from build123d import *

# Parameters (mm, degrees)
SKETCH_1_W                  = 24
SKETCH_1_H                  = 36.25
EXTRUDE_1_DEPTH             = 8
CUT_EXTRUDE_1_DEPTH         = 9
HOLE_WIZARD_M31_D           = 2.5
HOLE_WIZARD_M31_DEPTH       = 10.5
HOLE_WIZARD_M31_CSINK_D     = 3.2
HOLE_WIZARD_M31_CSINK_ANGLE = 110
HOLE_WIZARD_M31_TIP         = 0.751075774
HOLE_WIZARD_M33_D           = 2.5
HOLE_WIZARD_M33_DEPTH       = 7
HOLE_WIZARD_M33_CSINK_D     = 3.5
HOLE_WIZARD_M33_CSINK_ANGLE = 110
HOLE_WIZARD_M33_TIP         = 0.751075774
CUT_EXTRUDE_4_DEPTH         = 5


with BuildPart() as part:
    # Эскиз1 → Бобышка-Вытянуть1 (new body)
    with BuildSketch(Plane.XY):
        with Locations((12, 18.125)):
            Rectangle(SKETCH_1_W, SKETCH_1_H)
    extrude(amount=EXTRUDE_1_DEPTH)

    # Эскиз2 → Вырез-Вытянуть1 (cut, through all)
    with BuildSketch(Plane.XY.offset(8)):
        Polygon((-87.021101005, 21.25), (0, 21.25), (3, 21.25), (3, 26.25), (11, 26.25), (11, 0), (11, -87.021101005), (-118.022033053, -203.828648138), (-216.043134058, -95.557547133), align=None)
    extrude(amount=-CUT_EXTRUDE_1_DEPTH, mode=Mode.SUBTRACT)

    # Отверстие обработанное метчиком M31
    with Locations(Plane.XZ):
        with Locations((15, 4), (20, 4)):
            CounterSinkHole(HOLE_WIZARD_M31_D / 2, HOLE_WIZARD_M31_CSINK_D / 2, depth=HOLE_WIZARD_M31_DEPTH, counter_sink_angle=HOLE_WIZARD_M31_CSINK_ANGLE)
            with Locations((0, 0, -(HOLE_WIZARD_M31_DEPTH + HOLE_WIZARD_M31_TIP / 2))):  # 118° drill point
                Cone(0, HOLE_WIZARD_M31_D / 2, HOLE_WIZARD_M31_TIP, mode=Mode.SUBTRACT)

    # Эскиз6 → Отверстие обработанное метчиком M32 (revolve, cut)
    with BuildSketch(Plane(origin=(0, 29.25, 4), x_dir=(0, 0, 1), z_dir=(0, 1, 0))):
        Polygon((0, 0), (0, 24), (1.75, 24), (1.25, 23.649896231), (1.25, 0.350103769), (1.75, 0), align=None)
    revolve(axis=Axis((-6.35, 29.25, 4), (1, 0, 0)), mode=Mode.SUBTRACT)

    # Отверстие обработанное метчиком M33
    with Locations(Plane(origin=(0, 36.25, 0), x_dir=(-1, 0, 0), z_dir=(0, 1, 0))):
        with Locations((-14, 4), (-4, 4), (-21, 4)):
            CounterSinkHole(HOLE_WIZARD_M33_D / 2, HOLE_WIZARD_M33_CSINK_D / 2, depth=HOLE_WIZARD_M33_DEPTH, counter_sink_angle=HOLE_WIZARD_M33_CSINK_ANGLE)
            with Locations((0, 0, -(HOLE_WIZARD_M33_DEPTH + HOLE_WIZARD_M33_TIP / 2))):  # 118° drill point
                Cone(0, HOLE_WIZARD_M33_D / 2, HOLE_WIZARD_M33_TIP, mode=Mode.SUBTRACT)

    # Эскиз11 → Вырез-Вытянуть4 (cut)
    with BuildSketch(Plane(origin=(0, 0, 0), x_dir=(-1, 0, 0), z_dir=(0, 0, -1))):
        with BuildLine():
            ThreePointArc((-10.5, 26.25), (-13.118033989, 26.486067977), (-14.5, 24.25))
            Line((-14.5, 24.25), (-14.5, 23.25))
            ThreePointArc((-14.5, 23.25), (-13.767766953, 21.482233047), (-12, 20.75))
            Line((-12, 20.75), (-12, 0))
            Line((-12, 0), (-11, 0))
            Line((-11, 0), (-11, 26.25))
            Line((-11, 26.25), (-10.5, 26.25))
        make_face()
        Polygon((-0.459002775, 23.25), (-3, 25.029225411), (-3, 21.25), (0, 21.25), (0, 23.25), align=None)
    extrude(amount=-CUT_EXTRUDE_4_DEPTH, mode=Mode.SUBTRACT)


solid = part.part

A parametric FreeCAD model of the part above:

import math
import FreeCAD as App
import Part
import Sketcher
from FreeCAD import Vector
Q = App.Units.Quantity

doc = App.newDocument("Part")
body = doc.addObject("PartDesign::Body", "Body")

# Sketch on XY plane
sketch1 = body.newObject("Sketcher::SketchObject", "Sketch")
sketch1.AttachmentSupport = (doc.getObject("XY_Plane"), [""])
sketch1.MapMode = "FlatFace"
sketch1.addGeometry(Part.LineSegment(Vector(0, 36, 0), Vector(0, 0, 0)), False)
sketch1.addGeometry(Part.LineSegment(Vector(0, 0, 0), Vector(24, 0, 0)), False)
sketch1.addGeometry(Part.LineSegment(Vector(24, 0, 0), Vector(24, 36, 0)), False)
sketch1.addGeometry(Part.LineSegment(Vector(24, 36, 0), Vector(0, 36, 0)), False)
sketch1.addConstraint(Sketcher.Constraint("Coincident", 0, 2, 1, 1))
sketch1.addConstraint(Sketcher.Constraint("Coincident", 1, 2, 2, 1))
sketch1.addConstraint(Sketcher.Constraint("Coincident", 2, 2, 3, 1))
sketch1.addConstraint(Sketcher.Constraint("Coincident", 3, 2, 0, 1))
sketch1.addConstraint(Sketcher.Constraint("Vertical", 0))
sketch1.addConstraint(Sketcher.Constraint("Horizontal", 1))
sketch1.addConstraint(Sketcher.Constraint("Vertical", 2))
sketch1.addConstraint(Sketcher.Constraint("Horizontal", 3))
sketch1.addConstraint(Sketcher.Constraint("Coincident", 0, 2, -1, 1))
sketch1.addConstraint(Sketcher.Constraint("DistanceX", 1, 1, 1, 2, Q("24 mm")))
sketch1.addConstraint(Sketcher.Constraint("DistanceY", 0, 2, 0, 1, Q("36.25 mm")))
pad1 = body.newObject("PartDesign::Pad", "Pad")
pad1.Profile = sketch1
pad1.Length = 8

# Sketch on XY plane
sketch2 = body.newObject("Sketcher::SketchObject", "Sketch001")
sketch2.AttachmentSupport = (doc.getObject("XY_Plane"), [""])
sketch2.MapMode = "FlatFace"
sketch2.AttachmentOffset = App.Placement(Vector(0, 0, 8), App.Rotation())
sketch2.addGeometry(Part.LineSegment(Vector(3, 21, 0), Vector(-87, 21, 0)), False)
sketch2.addGeometry(Part.LineSegment(Vector(-87, 21, 0), Vector(-216, -96, 0)), False)
sketch2.addGeometry(Part.LineSegment(Vector(-216, -96, 0), Vector(-118, -204, 0)), False)
sketch2.addGeometry(Part.LineSegment(Vector(-118, -204, 0), Vector(11, -87, 0)), False)
sketch2.addGeometry(Part.LineSegment(Vector(11, -87, 0), Vector(11, 26, 0)), False)
sketch2.addGeometry(Part.LineSegment(Vector(11, 26, 0), Vector(3, 26, 0)), False)
sketch2.addGeometry(Part.LineSegment(Vector(3, 26, 0), Vector(3, 21, 0)), False)
sketch2.addConstraint(Sketcher.Constraint("Coincident", 0, 2, 1, 1))
sketch2.addConstraint(Sketcher.Constraint("Coincident", 1, 2, 2, 1))
sketch2.addConstraint(Sketcher.Constraint("Coincident", 2, 2, 3, 1))
sketch2.addConstraint(Sketcher.Constraint("Coincident", 3, 2, 4, 1))
sketch2.addConstraint(Sketcher.Constraint("Coincident", 4, 2, 5, 1))
sketch2.addConstraint(Sketcher.Constraint("Coincident", 5, 2, 6, 1))
sketch2.addConstraint(Sketcher.Constraint("Coincident", 6, 2, 0, 1))
sketch2.addConstraint(Sketcher.Constraint("Horizontal", 0))
sketch2.addConstraint(Sketcher.Constraint("Vertical", 4))
sketch2.addConstraint(Sketcher.Constraint("Horizontal", 5))
sketch2.addConstraint(Sketcher.Constraint("Vertical", 6))
sketch2.addConstraint(Sketcher.Constraint("Perpendicular", 1, 2))
sketch2.addConstraint(Sketcher.Constraint("Perpendicular", 2, 3))
sketch2.addConstraint(Sketcher.Constraint("Equal", 1, 3))
sketch2.addConstraint(Sketcher.Constraint("DistanceX", 5, 2, 5, 1, Q("8 mm")))
sketch2.addConstraint(Sketcher.Constraint("DistanceY", 6, 2, 6, 1, Q("5 mm")))
sketch2.addConstraint(Sketcher.Constraint("DistanceX", -1, 1, 3, 2, Q("11 mm")))
sketch2.addConstraint(Sketcher.Constraint("DistanceY", -1, 1, 0, 2, Q("21.25 mm")))
sketch2.addConstraint(Sketcher.Constraint("DistanceX", 0, 2, 0, 1, Q("90.021101 mm")))
sketch2.addConstraint(Sketcher.Constraint("DistanceY", 4, 1, 4, 2, Q("113.271101 mm")))
sketch2.addConstraint(Sketcher.Constraint("DistanceY", 2, 2, -1, 1, Q("203.828648 mm")))
pocket1 = body.newObject("PartDesign::Pocket", "Pocket")
pocket1.Profile = sketch2
pocket1.Type = "ThroughAll"

# Sketch on XZ plane
sketch3 = body.newObject("Sketcher::SketchObject", "Sketch002")
sketch3.AttachmentSupport = (doc.getObject("XZ_Plane"), [""])
sketch3.MapMode = "FlatFace"
sketch3.addGeometry(Part.Circle(Vector(15, 4, 0), Vector(0, 0, 1), 1.2), False)
sketch3.addGeometry(Part.Circle(Vector(20, 4, 0), Vector(0, 0, 1), 1.2), False)
sketch3.addConstraint(Sketcher.Constraint("Equal", 0, 1))
sketch3.addConstraint(Sketcher.Constraint("Horizontal", 0, 3, 1, 3))
sketch3.addConstraint(Sketcher.Constraint("Diameter", 0, Q("2.5 mm")))
sketch3.addConstraint(Sketcher.Constraint("DistanceX", -1, 1, 0, 3, Q("15 mm")))
sketch3.addConstraint(Sketcher.Constraint("DistanceY", -1, 1, 0, 3, Q("4 mm")))
sketch3.addConstraint(Sketcher.Constraint("DistanceX", -1, 1, 1, 3, Q("20 mm")))
doc.recompute()
hole = body.newObject("PartDesign::Hole", "Hole")
hole.Profile = sketch3
hole.ThreadType = "None"
hole.Diameter = 2.5
hole.DepthType = "Dimension"
hole.Depth = 10.5
hole.DrillPoint = "Angled"
hole.DrillPointAngle = 118
hole.HoleCutType = "Countersink"
hole.HoleCutDiameter = 3.2
hole.HoleCutCountersinkAngle = 110

# Sketch on XZ plane
sketch4 = body.newObject("Sketcher::SketchObject", "Sketch003")
sketch4.AttachmentSupport = (doc.getObject("XZ_Plane"), [""])
sketch4.MapMode = "FlatFace"
sketch4.AttachmentOffset = App.Placement(Vector(0, 0, -29.25), App.Rotation())
sketch4.addGeometry(Part.LineSegment(Vector(24, 4, 0), Vector(0, 4, 0)), False)
sketch4.addGeometry(Part.LineSegment(Vector(0, 4, 0), Vector(0, 5.8, 0)), False)
sketch4.addGeometry(Part.LineSegment(Vector(0, 5.8, 0), Vector(0.4, 5.2, 0)), False)
sketch4.addGeometry(Part.LineSegment(Vector(0.4, 5.2, 0), Vector(23.6, 5.2, 0)), False)
sketch4.addGeometry(Part.LineSegment(Vector(23.6, 5.2, 0), Vector(24, 5.8, 0)), False)
sketch4.addGeometry(Part.LineSegment(Vector(24, 5.8, 0), Vector(24, 4, 0)), False)
sketch4.addGeometry(Part.LineSegment(Vector(0, 4, 0), Vector(24, 4, 0)), True)  # axis
sketch4.addConstraint(Sketcher.Constraint("Coincident", 0, 2, 1, 1))
sketch4.addConstraint(Sketcher.Constraint("Coincident", 1, 2, 2, 1))
sketch4.addConstraint(Sketcher.Constraint("Coincident", 2, 2, 3, 1))
sketch4.addConstraint(Sketcher.Constraint("Coincident", 3, 2, 4, 1))
sketch4.addConstraint(Sketcher.Constraint("Coincident", 4, 2, 5, 1))
sketch4.addConstraint(Sketcher.Constraint("Coincident", 5, 2, 0, 1))
sketch4.addConstraint(Sketcher.Constraint("Horizontal", 0))
sketch4.addConstraint(Sketcher.Constraint("Vertical", 1))
sketch4.addConstraint(Sketcher.Constraint("Horizontal", 3))
sketch4.addConstraint(Sketcher.Constraint("Vertical", 5))
sketch4.addConstraint(Sketcher.Constraint("Horizontal", 6))
sketch4.addConstraint(Sketcher.Constraint("Coincident", 6, 1, 0, 2))
sketch4.addConstraint(Sketcher.Constraint("PointOnObject", 0, 2, -2))
sketch4.addConstraint(Sketcher.Constraint("Horizontal", 1, 2, 4, 2))
sketch4.addConstraint(Sketcher.Constraint("Vertical", 4, 2, 6, 2))
sketch4.addConstraint(Sketcher.Constraint("Equal", 2, 4))
sketch4.addConstraint(Sketcher.Constraint("DistanceX", 0, 2, 0, 1, Q("24 mm")))
sketch4.addConstraint(Sketcher.Constraint("Angle", 2, Q("-55 deg")))
sketch4.addConstraint(Sketcher.Constraint("DistanceY", -1, 1, 0, 2, Q("4 mm")))
sketch4.addConstraint(Sketcher.Constraint("DistanceY", 1, 1, 1, 2, Q("1.75 mm")))
sketch4.addConstraint(Sketcher.Constraint("DistanceY", 2, 2, 1, 2, Q("0.5 mm")))
groove = body.newObject("PartDesign::Groove", "Groove")
groove.Profile = sketch4
groove.ReferenceAxis = (sketch4, ["Axis0"])
groove.Angle = 360

# Sketch on XZ plane
sketch5 = body.newObject("Sketcher::SketchObject", "Sketch004")
sketch5.AttachmentSupport = (doc.getObject("XZ_Plane"), [""])
sketch5.MapMode = "FlatFace"
sketch5.AttachmentOffset = App.Placement(Vector(0, 0, -36.25), App.Rotation())
sketch5.addGeometry(Part.Circle(Vector(14, 4, 0), Vector(0, 0, 1), 1.2), False)
sketch5.addGeometry(Part.Circle(Vector(4, 4, 0), Vector(0, 0, 1), 1.2), False)
sketch5.addGeometry(Part.Circle(Vector(21, 4, 0), Vector(0, 0, 1), 1.2), False)
sketch5.addConstraint(Sketcher.Constraint("Equal", 0, 1))
sketch5.addConstraint(Sketcher.Constraint("Equal", 1, 2))
sketch5.addConstraint(Sketcher.Constraint("Horizontal", 0, 3, 1, 3))
sketch5.addConstraint(Sketcher.Constraint("Horizontal", 1, 3, 2, 3))
sketch5.addConstraint(Sketcher.Constraint("Diameter", 0, Q("2.5 mm")))
sketch5.addConstraint(Sketcher.Constraint("DistanceX", -1, 1, 0, 3, Q("14 mm")))
sketch5.addConstraint(Sketcher.Constraint("DistanceY", -1, 1, 0, 3, Q("4 mm")))
sketch5.addConstraint(Sketcher.Constraint("DistanceX", -1, 1, 1, 3, Q("4 mm")))
sketch5.addConstraint(Sketcher.Constraint("DistanceX", -1, 1, 2, 3, Q("21 mm")))
doc.recompute()
hole2 = body.newObject("PartDesign::Hole", "Hole001")
hole2.Profile = sketch5
hole2.ThreadType = "None"
hole2.Diameter = 2.5
hole2.DepthType = "Dimension"
hole2.Depth = 7
hole2.DrillPoint = "Angled"
hole2.DrillPointAngle = 118
hole2.HoleCutType = "Countersink"
hole2.HoleCutDiameter = 3.5
hole2.HoleCutCountersinkAngle = 110
hole2.Reversed = True

# Sketch on XY plane
sketch6 = body.newObject("Sketcher::SketchObject", "Sketch005")
sketch6.AttachmentSupport = (doc.getObject("XY_Plane"), [""])
sketch6.MapMode = "FlatFace"
sketch6.addGeometry(Part.ArcOfCircle(Part.Circle(Vector(12, 24.25, 0), Vector(0, 0, 1), 2.5), math.radians(0), math.radians(127)), False)
sketch6.addGeometry(Part.LineSegment(Vector(14.5, 24.25, 0), Vector(14.5, 23.25, 0)), False)
sketch6.addGeometry(Part.ArcOfCircle(Part.Circle(Vector(12, 23.25, 0), Vector(0, 0, 1), 2.5), math.radians(-90), math.radians(0)), False)
sketch6.addGeometry(Part.LineSegment(Vector(12, 20.75, 0), Vector(12, 0, 0)), False)
sketch6.addGeometry(Part.LineSegment(Vector(12, 0, 0), Vector(11, 0, 0)), False)
sketch6.addGeometry(Part.LineSegment(Vector(11, 0, 0), Vector(11, 26.25, 0)), False)
sketch6.addGeometry(Part.LineSegment(Vector(11, 26.25, 0), Vector(10.5, 26.25, 0)), False)
sketch6.addGeometry(Part.LineSegment(Vector(0.46, 23.25, 0), Vector(3, 25.03, 0)), False)
sketch6.addGeometry(Part.LineSegment(Vector(3, 25.03, 0), Vector(3, 21.25, 0)), False)
sketch6.addGeometry(Part.LineSegment(Vector(3, 21.25, 0), Vector(0, 21.25, 0)), False)
sketch6.addGeometry(Part.LineSegment(Vector(0, 21.25, 0), Vector(0, 23.25, 0)), False)
sketch6.addGeometry(Part.LineSegment(Vector(0, 23.25, 0), Vector(0.46, 23.25, 0)), False)
sketch6.addConstraint(Sketcher.Constraint("Tangent", 0, 1, 1, 1))
sketch6.addConstraint(Sketcher.Constraint("Tangent", 1, 2, 2, 2))
sketch6.addConstraint(Sketcher.Constraint("Coincident", 2, 1, 3, 1))
sketch6.addConstraint(Sketcher.Constraint("Coincident", 3, 2, 4, 1))
sketch6.addConstraint(Sketcher.Constraint("Coincident", 4, 2, 5, 1))
sketch6.addConstraint(Sketcher.Constraint("Coincident", 5, 2, 6, 1))
sketch6.addConstraint(Sketcher.Constraint("Coincident", 6, 2, 0, 2))
sketch6.addConstraint(Sketcher.Constraint("Coincident", 7, 2, 8, 1))
sketch6.addConstraint(Sketcher.Constraint("Coincident", 8, 2, 9, 1))
sketch6.addConstraint(Sketcher.Constraint("Coincident", 9, 2, 10, 1))
sketch6.addConstraint(Sketcher.Constraint("Coincident", 10, 2, 11, 1))
sketch6.addConstraint(Sketcher.Constraint("Coincident", 11, 2, 7, 1))
sketch6.addConstraint(Sketcher.Constraint("Vertical", 1))
sketch6.addConstraint(Sketcher.Constraint("Vertical", 3))
sketch6.addConstraint(Sketcher.Constraint("Horizontal", 4))
sketch6.addConstraint(Sketcher.Constraint("Vertical", 5))
sketch6.addConstraint(Sketcher.Constraint("Horizontal", 6))
sketch6.addConstraint(Sketcher.Constraint("Vertical", 8))
sketch6.addConstraint(Sketcher.Constraint("Horizontal", 9))
sketch6.addConstraint(Sketcher.Constraint("Vertical", 10))
sketch6.addConstraint(Sketcher.Constraint("Horizontal", 11))
sketch6.addConstraint(Sketcher.Constraint("Equal", 0, 2))
sketch6.addConstraint(Sketcher.Constraint("PointOnObject", 3, 2, -1))
sketch6.addConstraint(Sketcher.Constraint("PointOnObject", 9, 2, -2))
sketch6.addConstraint(Sketcher.Constraint("Horizontal", 1, 2, 10, 2))
sketch6.addConstraint(Sketcher.Constraint("Vertical", 0, 3, 2, 1))
sketch6.addConstraint(Sketcher.Constraint("Equal", 4, 1))
sketch6.addConstraint(Sketcher.Constraint("Radius", 0, Q("2.5 mm")))
sketch6.addConstraint(Sketcher.Constraint("DistanceX", 4, 2, 4, 1, Q("1 mm")))
sketch6.addConstraint(Sketcher.Constraint("DistanceX", 9, 2, 9, 1, Q("3 mm")))
sketch6.addConstraint(Sketcher.Constraint("DistanceY", 10, 1, 10, 2, Q("2 mm")))
sketch6.addConstraint(Sketcher.Constraint("Angle", 7, Q("35 deg")))
sketch6.addConstraint(Sketcher.Constraint("DistanceX", 6, 2, 6, 1, Q("0.5 mm")))
sketch6.addConstraint(Sketcher.Constraint("DistanceX", -1, 1, 0, 3, Q("12 mm")))
sketch6.addConstraint(Sketcher.Constraint("DistanceY", 3, 2, 3, 1, Q("20.75 mm")))
sketch6.addConstraint(Sketcher.Constraint("DistanceX", 11, 1, 11, 2, Q("0.459003 mm")))
pocket2 = body.newObject("PartDesign::Pocket", "Pocket001")
pocket2.Profile = sketch6
pocket2.Length = 5
pocket2.Reversed = True

doc.recompute()
